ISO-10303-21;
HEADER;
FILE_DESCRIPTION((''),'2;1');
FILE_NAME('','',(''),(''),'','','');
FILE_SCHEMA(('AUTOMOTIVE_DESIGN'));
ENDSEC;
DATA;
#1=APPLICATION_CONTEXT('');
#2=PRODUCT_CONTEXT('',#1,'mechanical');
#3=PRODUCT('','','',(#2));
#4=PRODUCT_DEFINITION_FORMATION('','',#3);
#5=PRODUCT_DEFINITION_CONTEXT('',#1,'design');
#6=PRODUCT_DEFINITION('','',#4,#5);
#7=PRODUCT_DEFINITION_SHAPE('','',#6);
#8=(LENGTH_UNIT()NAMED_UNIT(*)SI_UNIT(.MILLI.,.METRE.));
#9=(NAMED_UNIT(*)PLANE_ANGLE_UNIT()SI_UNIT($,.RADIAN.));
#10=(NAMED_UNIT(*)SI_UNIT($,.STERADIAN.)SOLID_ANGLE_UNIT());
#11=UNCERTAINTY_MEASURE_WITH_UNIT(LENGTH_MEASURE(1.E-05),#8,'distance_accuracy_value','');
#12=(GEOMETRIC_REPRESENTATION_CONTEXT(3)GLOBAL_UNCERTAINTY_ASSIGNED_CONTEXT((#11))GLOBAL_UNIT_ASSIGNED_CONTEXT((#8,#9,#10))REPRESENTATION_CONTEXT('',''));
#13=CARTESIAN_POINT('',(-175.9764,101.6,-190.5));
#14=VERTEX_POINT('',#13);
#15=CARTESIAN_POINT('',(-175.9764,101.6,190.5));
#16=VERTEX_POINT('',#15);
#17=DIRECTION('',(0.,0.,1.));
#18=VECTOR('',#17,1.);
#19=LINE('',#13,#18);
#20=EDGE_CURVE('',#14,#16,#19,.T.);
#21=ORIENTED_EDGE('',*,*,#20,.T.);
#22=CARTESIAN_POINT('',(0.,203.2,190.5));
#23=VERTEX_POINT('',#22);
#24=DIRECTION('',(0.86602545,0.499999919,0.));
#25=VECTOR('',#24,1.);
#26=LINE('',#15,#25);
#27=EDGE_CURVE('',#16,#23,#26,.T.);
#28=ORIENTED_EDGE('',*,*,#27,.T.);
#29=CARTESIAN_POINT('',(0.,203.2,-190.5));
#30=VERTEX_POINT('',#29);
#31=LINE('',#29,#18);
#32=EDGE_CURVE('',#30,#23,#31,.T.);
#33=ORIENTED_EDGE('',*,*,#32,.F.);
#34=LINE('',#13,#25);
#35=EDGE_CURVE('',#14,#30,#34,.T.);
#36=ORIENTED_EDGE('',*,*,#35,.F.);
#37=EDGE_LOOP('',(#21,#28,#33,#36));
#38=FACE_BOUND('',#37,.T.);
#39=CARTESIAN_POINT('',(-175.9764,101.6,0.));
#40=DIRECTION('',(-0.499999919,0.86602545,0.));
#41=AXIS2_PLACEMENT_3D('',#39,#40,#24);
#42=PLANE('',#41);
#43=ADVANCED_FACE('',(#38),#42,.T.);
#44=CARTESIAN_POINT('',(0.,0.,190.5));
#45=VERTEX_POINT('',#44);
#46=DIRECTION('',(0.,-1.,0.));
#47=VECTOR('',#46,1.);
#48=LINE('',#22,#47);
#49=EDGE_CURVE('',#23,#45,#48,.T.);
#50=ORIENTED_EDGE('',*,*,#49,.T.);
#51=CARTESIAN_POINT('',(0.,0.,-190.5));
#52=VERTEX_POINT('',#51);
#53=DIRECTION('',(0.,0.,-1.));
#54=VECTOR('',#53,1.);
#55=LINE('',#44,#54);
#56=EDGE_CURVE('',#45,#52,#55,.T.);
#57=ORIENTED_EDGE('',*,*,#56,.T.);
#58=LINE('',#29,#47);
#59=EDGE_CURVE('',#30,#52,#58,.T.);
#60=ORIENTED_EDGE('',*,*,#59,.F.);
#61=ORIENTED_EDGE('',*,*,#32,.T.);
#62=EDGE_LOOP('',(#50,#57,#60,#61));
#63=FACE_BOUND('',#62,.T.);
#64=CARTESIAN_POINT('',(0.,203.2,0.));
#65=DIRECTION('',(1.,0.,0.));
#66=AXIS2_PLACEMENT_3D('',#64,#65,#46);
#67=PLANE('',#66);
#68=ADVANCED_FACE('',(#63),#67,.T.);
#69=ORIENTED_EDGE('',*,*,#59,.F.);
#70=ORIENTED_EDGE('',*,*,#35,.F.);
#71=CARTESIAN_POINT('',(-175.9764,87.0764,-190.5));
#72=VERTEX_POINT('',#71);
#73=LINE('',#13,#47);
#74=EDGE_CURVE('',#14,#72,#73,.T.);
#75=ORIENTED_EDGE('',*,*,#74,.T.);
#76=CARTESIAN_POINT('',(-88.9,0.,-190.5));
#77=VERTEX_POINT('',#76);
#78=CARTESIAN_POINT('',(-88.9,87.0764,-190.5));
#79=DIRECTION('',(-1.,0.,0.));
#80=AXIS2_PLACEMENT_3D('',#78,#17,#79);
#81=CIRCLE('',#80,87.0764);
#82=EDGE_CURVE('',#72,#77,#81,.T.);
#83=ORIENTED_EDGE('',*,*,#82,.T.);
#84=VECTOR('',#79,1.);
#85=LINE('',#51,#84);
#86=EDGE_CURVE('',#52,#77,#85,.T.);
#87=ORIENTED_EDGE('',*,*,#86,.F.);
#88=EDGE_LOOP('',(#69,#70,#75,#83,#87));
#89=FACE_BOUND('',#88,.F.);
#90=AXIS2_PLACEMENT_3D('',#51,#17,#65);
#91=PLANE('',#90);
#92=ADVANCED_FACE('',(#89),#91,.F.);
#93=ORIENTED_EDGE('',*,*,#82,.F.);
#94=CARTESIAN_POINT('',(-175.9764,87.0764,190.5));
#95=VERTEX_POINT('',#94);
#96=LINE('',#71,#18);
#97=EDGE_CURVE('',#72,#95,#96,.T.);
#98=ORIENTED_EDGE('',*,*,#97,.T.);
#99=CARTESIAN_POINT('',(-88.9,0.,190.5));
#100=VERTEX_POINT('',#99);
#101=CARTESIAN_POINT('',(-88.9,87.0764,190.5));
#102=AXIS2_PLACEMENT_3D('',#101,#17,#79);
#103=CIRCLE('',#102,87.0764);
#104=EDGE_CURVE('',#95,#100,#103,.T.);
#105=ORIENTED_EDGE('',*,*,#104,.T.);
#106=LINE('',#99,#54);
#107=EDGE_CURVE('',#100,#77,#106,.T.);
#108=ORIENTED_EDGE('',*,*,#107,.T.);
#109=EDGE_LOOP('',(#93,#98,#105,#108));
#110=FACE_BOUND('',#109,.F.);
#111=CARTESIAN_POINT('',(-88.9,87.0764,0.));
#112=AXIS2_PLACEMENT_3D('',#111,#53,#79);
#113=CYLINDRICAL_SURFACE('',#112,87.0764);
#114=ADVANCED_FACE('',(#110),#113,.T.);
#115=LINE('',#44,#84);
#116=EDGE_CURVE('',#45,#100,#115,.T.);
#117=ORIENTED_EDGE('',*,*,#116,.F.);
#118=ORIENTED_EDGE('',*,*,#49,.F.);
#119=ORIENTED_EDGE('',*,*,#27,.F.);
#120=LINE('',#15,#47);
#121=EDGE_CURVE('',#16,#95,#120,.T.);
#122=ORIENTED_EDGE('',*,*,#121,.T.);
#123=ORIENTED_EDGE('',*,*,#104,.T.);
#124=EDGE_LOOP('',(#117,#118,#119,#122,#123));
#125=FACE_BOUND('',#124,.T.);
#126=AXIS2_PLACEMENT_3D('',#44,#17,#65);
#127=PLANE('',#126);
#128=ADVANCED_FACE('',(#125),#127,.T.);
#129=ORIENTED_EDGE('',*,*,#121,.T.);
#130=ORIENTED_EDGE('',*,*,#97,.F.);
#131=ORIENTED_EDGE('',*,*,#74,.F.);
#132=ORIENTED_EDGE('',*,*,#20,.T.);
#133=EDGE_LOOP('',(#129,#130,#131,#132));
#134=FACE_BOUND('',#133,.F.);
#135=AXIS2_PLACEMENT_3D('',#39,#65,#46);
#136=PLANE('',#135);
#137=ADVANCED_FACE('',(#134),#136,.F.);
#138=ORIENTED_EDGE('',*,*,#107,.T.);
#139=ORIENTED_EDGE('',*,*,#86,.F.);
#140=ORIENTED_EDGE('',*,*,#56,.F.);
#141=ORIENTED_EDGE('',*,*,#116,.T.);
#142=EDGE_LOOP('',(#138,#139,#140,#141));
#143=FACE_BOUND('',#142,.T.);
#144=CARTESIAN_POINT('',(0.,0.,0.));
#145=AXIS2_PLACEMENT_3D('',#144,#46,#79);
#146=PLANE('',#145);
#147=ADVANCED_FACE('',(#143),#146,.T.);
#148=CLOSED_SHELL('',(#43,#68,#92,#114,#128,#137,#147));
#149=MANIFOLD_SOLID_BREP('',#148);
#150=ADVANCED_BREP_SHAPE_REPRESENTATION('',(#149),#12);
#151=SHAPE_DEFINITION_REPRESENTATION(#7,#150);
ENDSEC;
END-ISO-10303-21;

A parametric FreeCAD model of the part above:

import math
import FreeCAD as App
import Part
import Sketcher
from FreeCAD import Vector
Q = App.Units.Quantity

doc = App.newDocument("Part")
body = doc.addObject("PartDesign::Body", "Body")

# Sketch on XY plane
sketch1 = body.newObject("Sketcher::SketchObject", "Sketch")
sketch1.AttachmentSupport = (doc.getObject("XY_Plane"), [""])
sketch1.MapMode = "FlatFace"
sketch1.addGeometry(Part.LineSegment(Vector(0, 0, 0), Vector(0, 203.2, 0)), False)
sketch1.addGeometry(Part.LineSegment(Vector(0, 203.2, 0), Vector(-175.9764, 101.6, 0)), False)
sketch1.addGeometry(Part.LineSegment(Vector(-175.9764, 101.6, 0), Vector(-175.9764, 87.0764, 0)), False)
sketch1.addGeometry(Part.ArcOfCircle(Part.Circle(Vector(-88.9, 87.0764, 0), Vector(0, 0, 1), 87.0764), math.radians(180), math.radians(270)), False)
sketch1.addGeometry(Part.LineSegment(Vector(-88.9, 0, 0), Vector(0, 0, 0)), False)
sketch1.addConstraint(Sketcher.Constraint("Coincident", 0, 2, 1, 1))
sketch1.addConstraint(Sketcher.Constraint("Coincident", 1, 2, 2, 1))
sketch1.addConstraint(Sketcher.Constraint("Tangent", 2, 2, 3, 1))
sketch1.addConstraint(Sketcher.Constraint("Tangent", 3, 2, 4, 1))
sketch1.addConstraint(Sketcher.Constraint("Coincident", 4, 2, 0, 1))
sketch1.addConstraint(Sketcher.Constraint("Vertical", 0))
sketch1.addConstraint(Sketcher.Constraint("Vertical", 2))
sketch1.addConstraint(Sketcher.Constraint("Horizontal", 4))
sketch1.addConstraint(Sketcher.Constraint("Coincident", 4, 2, -1, 1))
sketch1.addConstraint(Sketcher.Constraint("DistanceY", 0, 1, 0, 2, Q("8 in")))
sketch1.addConstraint(Sketcher.Constraint("Distance", 1, Q("8 in")))
sketch1.addConstraint(Sketcher.Constraint("DistanceX", 4, 1, 4, 2, Q("3.5 in")))
sketch1.addConstraint(Sketcher.Constraint("DistanceY", -1, 1, 1, 2, Q("4 in")))
pad1 = body.newObject("PartDesign::Pad", "Pad")
pad1.Profile = sketch1
pad1.Length = Q("15 in")
pad1.Midplane = True

doc.recompute()
